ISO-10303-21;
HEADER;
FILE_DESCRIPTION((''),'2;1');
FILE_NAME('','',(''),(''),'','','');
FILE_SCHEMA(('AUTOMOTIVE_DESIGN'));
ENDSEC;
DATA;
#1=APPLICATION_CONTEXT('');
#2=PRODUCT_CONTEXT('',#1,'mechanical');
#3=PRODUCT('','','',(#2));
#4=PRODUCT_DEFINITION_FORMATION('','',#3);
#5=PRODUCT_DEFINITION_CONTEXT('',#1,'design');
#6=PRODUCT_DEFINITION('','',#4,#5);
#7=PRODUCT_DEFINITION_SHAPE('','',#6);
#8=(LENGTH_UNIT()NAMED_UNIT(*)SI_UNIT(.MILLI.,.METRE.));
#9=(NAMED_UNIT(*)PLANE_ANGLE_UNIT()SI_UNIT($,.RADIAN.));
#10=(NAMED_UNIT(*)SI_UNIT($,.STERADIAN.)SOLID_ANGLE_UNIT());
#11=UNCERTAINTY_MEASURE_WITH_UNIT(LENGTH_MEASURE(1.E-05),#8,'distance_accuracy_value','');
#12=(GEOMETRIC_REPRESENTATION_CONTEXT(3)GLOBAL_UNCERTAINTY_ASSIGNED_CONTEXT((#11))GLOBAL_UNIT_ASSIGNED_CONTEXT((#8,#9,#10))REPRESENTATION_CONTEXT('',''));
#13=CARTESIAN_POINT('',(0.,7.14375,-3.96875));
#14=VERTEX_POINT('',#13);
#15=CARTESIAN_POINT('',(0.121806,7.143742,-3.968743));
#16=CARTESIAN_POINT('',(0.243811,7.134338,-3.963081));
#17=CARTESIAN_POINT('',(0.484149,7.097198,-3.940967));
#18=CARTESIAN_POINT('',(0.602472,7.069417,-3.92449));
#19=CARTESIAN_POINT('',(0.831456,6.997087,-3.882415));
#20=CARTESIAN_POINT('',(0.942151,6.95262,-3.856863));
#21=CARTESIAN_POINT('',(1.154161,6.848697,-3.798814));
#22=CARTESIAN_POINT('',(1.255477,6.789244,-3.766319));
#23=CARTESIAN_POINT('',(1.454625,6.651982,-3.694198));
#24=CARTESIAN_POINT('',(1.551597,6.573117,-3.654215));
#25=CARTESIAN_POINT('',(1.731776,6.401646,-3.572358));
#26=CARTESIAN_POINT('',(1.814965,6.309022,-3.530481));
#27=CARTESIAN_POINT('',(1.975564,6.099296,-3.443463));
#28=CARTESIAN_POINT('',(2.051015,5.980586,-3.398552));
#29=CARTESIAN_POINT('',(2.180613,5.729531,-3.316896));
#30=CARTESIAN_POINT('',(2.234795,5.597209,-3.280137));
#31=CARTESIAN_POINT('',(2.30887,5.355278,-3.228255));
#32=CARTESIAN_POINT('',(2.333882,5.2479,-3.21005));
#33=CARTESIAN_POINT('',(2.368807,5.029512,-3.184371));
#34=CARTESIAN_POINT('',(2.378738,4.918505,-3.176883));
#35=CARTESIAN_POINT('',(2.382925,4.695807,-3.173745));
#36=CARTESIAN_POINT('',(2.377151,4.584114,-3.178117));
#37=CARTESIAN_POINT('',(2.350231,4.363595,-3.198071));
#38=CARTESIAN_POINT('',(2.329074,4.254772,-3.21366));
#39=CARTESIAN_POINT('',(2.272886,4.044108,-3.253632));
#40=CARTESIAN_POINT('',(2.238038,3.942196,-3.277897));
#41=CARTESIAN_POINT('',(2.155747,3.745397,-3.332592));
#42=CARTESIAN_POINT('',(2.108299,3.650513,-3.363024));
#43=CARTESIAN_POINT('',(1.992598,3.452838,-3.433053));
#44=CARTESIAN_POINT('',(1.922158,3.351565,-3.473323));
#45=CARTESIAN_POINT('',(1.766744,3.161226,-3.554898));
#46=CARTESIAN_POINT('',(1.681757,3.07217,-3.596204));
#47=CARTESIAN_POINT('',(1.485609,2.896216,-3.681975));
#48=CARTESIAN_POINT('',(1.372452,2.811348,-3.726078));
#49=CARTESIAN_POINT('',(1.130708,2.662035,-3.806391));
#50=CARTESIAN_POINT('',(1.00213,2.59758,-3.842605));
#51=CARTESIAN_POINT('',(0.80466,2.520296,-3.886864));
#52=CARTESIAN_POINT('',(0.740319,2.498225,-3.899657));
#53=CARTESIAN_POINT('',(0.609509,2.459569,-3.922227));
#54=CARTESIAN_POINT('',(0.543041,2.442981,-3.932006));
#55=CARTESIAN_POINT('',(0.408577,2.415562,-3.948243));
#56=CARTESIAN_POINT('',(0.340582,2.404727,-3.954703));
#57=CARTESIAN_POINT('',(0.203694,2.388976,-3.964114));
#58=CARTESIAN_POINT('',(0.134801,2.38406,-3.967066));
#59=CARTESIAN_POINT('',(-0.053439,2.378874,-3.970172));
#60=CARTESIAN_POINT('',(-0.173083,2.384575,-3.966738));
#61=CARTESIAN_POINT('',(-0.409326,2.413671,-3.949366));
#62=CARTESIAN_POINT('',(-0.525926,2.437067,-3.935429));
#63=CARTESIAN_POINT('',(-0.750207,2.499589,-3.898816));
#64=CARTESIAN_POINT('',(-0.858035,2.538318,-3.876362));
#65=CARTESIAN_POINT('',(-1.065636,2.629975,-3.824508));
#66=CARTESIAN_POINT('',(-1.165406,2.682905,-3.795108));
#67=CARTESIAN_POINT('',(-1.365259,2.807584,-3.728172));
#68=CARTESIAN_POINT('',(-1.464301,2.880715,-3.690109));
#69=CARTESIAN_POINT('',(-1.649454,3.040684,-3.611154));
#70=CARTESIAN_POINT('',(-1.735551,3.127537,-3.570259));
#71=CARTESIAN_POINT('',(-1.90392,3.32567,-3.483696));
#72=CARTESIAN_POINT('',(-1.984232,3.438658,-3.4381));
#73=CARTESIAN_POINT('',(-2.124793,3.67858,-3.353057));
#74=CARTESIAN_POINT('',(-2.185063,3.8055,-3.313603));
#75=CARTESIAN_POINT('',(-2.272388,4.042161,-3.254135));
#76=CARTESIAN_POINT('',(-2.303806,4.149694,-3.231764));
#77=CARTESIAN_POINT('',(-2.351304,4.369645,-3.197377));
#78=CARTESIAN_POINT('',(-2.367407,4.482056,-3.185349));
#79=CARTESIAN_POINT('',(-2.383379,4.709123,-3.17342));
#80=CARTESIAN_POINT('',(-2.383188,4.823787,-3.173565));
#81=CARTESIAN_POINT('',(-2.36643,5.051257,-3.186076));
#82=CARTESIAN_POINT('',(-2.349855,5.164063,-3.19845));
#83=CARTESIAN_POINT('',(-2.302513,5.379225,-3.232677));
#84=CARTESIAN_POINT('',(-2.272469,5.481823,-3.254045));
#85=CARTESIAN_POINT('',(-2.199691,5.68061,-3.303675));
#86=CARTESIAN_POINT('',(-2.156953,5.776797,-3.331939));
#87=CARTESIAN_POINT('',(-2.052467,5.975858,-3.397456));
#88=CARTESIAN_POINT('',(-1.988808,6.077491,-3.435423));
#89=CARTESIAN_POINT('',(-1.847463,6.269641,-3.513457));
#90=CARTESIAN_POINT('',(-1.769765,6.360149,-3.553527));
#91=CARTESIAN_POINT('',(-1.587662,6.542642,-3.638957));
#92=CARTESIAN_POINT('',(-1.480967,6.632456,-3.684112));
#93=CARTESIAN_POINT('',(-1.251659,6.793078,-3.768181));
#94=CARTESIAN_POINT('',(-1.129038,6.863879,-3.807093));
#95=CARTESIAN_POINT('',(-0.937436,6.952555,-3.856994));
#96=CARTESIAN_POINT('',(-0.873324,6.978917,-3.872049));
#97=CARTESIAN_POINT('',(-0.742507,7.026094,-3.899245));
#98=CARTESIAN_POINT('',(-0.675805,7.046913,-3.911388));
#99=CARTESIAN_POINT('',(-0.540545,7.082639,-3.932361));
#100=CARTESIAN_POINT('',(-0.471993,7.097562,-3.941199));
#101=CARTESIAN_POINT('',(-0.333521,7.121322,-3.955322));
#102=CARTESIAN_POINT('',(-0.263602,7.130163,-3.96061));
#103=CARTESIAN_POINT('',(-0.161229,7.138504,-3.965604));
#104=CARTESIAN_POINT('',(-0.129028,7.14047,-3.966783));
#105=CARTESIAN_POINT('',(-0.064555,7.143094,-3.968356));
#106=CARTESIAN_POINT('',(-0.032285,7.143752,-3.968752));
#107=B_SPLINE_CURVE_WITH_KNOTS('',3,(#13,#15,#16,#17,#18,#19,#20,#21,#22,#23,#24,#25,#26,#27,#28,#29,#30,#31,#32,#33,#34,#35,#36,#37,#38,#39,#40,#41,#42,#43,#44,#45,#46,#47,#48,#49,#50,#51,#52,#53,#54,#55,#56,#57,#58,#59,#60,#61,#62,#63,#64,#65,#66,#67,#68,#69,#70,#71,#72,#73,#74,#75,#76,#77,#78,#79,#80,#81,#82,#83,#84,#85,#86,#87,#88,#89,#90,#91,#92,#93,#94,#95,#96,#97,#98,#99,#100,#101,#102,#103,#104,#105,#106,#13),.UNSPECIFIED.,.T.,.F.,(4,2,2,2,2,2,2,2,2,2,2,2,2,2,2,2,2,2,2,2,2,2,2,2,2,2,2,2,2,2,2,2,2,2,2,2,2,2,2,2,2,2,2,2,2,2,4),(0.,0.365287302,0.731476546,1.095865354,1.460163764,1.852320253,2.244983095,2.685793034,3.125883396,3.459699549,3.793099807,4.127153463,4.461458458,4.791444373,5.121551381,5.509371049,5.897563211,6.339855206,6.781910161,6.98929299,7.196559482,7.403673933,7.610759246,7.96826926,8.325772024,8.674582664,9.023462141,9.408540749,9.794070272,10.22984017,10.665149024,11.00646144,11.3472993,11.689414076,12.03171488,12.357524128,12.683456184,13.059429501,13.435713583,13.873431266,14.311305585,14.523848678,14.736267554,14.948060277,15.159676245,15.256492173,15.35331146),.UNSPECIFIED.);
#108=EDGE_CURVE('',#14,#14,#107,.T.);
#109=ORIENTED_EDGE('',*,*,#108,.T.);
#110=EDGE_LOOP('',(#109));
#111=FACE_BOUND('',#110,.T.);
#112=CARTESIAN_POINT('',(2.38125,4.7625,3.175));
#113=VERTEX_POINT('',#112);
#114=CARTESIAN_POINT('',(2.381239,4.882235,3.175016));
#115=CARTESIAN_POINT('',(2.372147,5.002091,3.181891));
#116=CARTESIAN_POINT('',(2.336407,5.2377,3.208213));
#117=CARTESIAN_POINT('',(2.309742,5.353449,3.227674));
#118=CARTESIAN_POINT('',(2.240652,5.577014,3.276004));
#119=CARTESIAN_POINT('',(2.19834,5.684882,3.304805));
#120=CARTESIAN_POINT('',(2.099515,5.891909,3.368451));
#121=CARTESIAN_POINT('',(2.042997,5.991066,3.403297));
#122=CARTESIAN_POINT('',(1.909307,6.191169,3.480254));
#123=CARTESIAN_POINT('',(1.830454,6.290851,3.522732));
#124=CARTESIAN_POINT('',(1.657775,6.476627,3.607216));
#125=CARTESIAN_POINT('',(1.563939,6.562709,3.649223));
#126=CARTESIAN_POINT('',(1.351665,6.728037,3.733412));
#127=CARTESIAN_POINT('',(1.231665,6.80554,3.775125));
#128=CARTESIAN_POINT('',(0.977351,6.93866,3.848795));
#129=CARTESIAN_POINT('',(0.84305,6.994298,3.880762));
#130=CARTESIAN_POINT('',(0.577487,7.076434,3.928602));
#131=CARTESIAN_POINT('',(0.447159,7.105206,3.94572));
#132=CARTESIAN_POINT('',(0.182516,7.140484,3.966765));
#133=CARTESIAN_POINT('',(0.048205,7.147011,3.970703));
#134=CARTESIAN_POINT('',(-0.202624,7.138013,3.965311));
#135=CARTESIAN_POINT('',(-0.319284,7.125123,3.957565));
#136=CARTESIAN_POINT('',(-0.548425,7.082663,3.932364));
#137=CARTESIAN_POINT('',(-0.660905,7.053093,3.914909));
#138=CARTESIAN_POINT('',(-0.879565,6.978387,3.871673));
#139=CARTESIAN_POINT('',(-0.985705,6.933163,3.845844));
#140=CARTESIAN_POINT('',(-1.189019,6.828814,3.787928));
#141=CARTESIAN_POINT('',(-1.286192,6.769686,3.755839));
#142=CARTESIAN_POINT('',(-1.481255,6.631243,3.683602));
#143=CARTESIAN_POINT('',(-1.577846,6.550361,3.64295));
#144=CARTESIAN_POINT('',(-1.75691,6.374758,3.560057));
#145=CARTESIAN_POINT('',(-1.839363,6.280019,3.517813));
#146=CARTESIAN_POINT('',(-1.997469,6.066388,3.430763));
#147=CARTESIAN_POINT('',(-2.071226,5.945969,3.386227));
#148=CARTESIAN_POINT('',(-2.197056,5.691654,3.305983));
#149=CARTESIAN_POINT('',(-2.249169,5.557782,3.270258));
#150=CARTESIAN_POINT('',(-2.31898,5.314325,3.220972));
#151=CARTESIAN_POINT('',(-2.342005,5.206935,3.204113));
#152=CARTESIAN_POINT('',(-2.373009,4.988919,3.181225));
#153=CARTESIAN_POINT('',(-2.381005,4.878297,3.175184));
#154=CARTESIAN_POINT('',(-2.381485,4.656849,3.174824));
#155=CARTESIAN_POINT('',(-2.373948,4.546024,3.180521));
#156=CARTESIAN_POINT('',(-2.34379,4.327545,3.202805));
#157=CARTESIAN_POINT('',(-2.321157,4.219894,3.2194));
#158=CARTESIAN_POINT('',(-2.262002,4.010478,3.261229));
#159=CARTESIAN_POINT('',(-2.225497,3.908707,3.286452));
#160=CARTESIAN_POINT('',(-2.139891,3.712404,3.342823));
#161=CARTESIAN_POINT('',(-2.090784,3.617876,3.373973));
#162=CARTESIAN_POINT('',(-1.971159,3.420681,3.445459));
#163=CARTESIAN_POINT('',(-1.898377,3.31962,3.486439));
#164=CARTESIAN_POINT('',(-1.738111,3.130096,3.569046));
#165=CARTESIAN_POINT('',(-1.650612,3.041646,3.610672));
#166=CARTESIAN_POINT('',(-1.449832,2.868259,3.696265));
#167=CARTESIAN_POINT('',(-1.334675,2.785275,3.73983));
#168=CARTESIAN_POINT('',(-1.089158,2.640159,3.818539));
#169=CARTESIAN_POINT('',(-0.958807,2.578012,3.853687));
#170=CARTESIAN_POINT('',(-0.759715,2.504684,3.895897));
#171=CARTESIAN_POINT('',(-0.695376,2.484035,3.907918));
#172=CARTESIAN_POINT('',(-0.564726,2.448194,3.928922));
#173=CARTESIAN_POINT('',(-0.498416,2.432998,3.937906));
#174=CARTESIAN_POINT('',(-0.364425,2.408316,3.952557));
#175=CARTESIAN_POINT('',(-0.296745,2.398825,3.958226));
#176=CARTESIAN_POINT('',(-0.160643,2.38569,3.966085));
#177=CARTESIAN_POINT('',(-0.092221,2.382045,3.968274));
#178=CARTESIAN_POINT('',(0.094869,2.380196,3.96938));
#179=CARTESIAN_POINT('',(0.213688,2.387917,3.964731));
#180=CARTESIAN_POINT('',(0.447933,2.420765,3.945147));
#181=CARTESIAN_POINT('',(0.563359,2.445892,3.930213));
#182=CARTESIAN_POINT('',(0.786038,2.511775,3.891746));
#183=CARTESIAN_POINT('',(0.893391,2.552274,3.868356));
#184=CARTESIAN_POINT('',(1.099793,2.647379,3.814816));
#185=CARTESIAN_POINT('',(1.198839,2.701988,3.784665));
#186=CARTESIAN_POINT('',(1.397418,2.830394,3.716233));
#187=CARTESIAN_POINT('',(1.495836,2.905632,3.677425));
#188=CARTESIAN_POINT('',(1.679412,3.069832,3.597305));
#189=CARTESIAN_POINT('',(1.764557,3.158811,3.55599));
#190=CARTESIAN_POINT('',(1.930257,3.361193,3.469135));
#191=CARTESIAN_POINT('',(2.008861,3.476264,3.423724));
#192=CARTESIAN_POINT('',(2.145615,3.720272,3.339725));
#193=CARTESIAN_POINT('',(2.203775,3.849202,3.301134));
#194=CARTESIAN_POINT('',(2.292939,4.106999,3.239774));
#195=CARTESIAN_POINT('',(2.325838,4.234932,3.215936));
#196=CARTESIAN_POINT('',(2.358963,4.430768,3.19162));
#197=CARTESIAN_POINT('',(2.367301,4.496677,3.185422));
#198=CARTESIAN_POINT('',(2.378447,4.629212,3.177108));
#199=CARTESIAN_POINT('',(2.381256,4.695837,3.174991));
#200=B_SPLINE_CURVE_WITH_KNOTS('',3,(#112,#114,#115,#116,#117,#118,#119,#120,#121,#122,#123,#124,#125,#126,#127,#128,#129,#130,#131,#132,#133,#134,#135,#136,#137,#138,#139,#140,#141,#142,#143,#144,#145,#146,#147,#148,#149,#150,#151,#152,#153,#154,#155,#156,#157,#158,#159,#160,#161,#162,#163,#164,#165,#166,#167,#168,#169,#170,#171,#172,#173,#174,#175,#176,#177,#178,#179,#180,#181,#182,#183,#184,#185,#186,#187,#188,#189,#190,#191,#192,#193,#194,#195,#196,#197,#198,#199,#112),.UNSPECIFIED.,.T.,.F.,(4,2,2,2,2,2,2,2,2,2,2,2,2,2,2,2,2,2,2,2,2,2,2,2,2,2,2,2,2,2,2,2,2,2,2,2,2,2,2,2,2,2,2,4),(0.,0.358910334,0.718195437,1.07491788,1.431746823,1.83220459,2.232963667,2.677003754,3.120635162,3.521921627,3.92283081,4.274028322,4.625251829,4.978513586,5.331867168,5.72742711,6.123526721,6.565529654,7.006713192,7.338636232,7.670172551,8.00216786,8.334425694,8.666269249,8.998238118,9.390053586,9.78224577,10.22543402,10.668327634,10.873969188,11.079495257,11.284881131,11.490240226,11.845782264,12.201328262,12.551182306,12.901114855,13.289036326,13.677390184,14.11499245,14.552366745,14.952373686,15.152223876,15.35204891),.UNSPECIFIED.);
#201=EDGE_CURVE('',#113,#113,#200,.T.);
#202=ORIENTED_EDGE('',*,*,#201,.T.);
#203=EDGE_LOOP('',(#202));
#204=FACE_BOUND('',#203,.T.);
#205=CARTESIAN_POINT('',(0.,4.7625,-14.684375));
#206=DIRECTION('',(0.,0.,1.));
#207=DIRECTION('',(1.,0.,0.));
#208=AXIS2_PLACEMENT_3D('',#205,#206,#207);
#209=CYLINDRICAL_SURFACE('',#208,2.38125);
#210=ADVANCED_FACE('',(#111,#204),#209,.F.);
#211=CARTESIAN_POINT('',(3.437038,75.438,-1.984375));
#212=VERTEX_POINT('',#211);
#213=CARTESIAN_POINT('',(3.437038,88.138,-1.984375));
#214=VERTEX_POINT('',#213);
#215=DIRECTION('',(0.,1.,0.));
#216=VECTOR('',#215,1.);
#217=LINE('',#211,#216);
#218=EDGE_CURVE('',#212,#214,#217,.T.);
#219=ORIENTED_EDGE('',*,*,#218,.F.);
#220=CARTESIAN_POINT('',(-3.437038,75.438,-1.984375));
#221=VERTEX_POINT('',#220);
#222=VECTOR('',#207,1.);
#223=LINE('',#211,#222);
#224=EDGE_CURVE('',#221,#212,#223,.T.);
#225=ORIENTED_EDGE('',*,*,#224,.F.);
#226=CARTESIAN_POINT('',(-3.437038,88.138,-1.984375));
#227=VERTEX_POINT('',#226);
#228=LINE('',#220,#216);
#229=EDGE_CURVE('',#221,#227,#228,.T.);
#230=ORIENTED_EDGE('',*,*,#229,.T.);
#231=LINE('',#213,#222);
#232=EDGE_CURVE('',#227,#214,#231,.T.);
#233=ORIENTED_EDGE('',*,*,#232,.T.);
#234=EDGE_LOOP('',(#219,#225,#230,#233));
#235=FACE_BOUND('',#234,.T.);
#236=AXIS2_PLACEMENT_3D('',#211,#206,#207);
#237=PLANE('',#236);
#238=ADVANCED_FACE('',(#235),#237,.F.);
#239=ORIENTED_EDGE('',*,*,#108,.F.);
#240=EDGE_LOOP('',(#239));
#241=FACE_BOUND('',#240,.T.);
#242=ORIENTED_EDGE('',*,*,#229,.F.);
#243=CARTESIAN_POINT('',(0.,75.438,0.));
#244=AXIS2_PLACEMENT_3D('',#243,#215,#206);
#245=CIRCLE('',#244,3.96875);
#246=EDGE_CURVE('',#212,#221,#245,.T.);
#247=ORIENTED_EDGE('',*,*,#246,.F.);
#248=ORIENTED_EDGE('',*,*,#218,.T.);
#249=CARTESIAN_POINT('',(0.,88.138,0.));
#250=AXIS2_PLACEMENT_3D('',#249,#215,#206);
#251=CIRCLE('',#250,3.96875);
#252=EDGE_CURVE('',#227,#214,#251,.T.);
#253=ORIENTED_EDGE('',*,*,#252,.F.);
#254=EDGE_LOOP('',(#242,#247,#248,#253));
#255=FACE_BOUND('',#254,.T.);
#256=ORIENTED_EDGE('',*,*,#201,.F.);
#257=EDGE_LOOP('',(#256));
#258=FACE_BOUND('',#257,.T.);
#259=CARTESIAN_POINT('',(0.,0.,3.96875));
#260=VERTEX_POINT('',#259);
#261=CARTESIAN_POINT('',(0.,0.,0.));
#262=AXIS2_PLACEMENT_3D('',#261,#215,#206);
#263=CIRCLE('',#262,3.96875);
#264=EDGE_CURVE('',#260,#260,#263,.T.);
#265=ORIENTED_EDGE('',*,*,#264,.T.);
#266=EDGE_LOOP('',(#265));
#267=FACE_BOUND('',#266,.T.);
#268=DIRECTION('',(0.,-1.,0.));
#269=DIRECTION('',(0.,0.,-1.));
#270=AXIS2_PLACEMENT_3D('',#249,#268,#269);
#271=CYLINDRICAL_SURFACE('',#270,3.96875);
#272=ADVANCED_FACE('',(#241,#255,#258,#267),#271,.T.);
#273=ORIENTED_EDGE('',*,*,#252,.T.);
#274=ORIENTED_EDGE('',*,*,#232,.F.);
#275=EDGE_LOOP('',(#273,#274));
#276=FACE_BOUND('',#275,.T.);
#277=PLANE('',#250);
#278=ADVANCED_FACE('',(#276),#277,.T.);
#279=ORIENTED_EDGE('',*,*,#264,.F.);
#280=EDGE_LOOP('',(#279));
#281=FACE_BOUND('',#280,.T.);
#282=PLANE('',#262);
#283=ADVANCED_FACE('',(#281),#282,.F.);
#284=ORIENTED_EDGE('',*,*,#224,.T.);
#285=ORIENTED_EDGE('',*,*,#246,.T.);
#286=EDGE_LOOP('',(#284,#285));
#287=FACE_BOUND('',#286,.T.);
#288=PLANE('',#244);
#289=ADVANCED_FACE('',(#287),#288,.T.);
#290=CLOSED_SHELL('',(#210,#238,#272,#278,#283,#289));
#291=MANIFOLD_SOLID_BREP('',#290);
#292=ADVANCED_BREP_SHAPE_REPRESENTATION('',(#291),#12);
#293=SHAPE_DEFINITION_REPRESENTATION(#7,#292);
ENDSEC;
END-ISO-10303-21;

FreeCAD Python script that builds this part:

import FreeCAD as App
import Part
import Sketcher

V = App.Vector
Q = App.Units.Quantity

doc = App.newDocument("Part")
body = doc.addObject("PartDesign::Body", "Body")

# Sketch on XZ plane
sketch1 = doc.addObject("Sketcher::SketchObject", "Sketch")
body.addObject(sketch1)
sketch1.AttachmentSupport = (doc.XZ_Plane, [""])
sketch1.MapMode = "FlatFace"
sketch1.addGeometry(Part.Circle(V(0, 0, 0), V(0, 0, 1), 4), False)
sketch1.addConstraint([
    Sketcher.Constraint("Coincident", 0, 3, -1, 1),
    Sketcher.Constraint("Diameter", 0, Q("0.3125 in")),
])
pad1 = doc.addObject("PartDesign::Pad", "Pad")
body.addObject(pad1)
pad1.Profile = sketch1
pad1.Length = Q("3.47 in")
pad1.Reversed = True

# Sketch on XZ plane
sketch2 = doc.addObject("Sketcher::SketchObject", "Sketch001")
body.addObject(sketch2)
sketch2.AttachmentSupport = (doc.XZ_Plane, [""])
sketch2.MapMode = "FlatFace"
sketch2.AttachmentOffset = App.Placement(V(0, 0, -3.47 * 25.4), App.Rotation())
sketch2.addGeometry([
    Part.LineSegment(V(-3.4, -2, 0), V(3.4, -2, 0)),  # 0
    Part.LineSegment(V(3.4, -2, 0), V(2.5, -4.7, 0)),  # 1
    Part.LineSegment(V(2.5, -4.7, 0), V(-2.6, -6.4, 0)),  # 2
    Part.LineSegment(V(-2.6, -6.4, 0), V(-4.7, -2.5, 0)),  # 3
    Part.LineSegment(V(-4.7, -2.5, 0), V(-3.4, -2, 0)),  # 4
], False)
sketch2.addConstraint([
    Sketcher.Constraint("Coincident", 0, 2, 1, 1),
    Sketcher.Constraint("Coincident", 1, 2, 2, 1),
    Sketcher.Constraint("Coincident", 2, 2, 3, 1),
    Sketcher.Constraint("Coincident", 3, 2, 4, 1),
    Sketcher.Constraint("Coincident", 4, 2, 0, 1),
    Sketcher.Constraint("Horizontal", 0),
    Sketcher.Constraint("DistanceY", 0, 2, -1, 1, Q("0.078125 in")),
    Sketcher.Constraint("Distance", 2, 5.301871),
    Sketcher.Constraint("DistanceX", 0, 1, 0, 2, 6.874077),
    Sketcher.Constraint("DistanceX", -1, 1, 0, 2, 3.437038),
    Sketcher.Constraint("DistanceX", -1, 1, 1, 2, 2.45672),
    Sketcher.Constraint("DistanceY", 1, 2, 0, 2, 2.744552),
    Sketcher.Constraint("DistanceY", 2, 2, 1, 2, 1.62431),
    Sketcher.Constraint("DistanceX", 3, 2, 2, 2, 2.129191),
    Sketcher.Constraint("DistanceY", 2, 2, 3, 2, 3.830771),
])
pocket1 = doc.addObject("PartDesign::Pocket", "Pocket")
body.addObject(pocket1)
pocket1.Profile = sketch2
pocket1.Length = Q("0.5 in")
pocket1.Reversed = True

# Sketch on XY plane
sketch3 = doc.addObject("Sketcher::SketchObject", "Sketch002")
body.addObject(sketch3)
sketch3.AttachmentSupport = (doc.XY_Plane, [""])
sketch3.MapMode = "FlatFace"
sketch3.AttachmentOffset = App.Placement(V(0, 0, -0.078125 * 25.4), App.Rotation())
sketch3.addGeometry(Part.Circle(V(0, 4.8, 0), V(0, 0, 1), 2.4), False)
sketch3.addConstraint([
    Sketcher.Constraint("PointOnObject", 0, 3, -2),
    Sketcher.Constraint("Diameter", 0, Q("0.1875 in")),
    Sketcher.Constraint("DistanceY", -1, 1, 0, 3, Q("0.1875 in")),
])
pocket2 = doc.addObject("PartDesign::Pocket", "Pocket001")
body.addObject(pocket2)
pocket2.Profile = sketch3
pocket2.Type = "ThroughAll"
pocket2.Midplane = True

doc.recompute()
